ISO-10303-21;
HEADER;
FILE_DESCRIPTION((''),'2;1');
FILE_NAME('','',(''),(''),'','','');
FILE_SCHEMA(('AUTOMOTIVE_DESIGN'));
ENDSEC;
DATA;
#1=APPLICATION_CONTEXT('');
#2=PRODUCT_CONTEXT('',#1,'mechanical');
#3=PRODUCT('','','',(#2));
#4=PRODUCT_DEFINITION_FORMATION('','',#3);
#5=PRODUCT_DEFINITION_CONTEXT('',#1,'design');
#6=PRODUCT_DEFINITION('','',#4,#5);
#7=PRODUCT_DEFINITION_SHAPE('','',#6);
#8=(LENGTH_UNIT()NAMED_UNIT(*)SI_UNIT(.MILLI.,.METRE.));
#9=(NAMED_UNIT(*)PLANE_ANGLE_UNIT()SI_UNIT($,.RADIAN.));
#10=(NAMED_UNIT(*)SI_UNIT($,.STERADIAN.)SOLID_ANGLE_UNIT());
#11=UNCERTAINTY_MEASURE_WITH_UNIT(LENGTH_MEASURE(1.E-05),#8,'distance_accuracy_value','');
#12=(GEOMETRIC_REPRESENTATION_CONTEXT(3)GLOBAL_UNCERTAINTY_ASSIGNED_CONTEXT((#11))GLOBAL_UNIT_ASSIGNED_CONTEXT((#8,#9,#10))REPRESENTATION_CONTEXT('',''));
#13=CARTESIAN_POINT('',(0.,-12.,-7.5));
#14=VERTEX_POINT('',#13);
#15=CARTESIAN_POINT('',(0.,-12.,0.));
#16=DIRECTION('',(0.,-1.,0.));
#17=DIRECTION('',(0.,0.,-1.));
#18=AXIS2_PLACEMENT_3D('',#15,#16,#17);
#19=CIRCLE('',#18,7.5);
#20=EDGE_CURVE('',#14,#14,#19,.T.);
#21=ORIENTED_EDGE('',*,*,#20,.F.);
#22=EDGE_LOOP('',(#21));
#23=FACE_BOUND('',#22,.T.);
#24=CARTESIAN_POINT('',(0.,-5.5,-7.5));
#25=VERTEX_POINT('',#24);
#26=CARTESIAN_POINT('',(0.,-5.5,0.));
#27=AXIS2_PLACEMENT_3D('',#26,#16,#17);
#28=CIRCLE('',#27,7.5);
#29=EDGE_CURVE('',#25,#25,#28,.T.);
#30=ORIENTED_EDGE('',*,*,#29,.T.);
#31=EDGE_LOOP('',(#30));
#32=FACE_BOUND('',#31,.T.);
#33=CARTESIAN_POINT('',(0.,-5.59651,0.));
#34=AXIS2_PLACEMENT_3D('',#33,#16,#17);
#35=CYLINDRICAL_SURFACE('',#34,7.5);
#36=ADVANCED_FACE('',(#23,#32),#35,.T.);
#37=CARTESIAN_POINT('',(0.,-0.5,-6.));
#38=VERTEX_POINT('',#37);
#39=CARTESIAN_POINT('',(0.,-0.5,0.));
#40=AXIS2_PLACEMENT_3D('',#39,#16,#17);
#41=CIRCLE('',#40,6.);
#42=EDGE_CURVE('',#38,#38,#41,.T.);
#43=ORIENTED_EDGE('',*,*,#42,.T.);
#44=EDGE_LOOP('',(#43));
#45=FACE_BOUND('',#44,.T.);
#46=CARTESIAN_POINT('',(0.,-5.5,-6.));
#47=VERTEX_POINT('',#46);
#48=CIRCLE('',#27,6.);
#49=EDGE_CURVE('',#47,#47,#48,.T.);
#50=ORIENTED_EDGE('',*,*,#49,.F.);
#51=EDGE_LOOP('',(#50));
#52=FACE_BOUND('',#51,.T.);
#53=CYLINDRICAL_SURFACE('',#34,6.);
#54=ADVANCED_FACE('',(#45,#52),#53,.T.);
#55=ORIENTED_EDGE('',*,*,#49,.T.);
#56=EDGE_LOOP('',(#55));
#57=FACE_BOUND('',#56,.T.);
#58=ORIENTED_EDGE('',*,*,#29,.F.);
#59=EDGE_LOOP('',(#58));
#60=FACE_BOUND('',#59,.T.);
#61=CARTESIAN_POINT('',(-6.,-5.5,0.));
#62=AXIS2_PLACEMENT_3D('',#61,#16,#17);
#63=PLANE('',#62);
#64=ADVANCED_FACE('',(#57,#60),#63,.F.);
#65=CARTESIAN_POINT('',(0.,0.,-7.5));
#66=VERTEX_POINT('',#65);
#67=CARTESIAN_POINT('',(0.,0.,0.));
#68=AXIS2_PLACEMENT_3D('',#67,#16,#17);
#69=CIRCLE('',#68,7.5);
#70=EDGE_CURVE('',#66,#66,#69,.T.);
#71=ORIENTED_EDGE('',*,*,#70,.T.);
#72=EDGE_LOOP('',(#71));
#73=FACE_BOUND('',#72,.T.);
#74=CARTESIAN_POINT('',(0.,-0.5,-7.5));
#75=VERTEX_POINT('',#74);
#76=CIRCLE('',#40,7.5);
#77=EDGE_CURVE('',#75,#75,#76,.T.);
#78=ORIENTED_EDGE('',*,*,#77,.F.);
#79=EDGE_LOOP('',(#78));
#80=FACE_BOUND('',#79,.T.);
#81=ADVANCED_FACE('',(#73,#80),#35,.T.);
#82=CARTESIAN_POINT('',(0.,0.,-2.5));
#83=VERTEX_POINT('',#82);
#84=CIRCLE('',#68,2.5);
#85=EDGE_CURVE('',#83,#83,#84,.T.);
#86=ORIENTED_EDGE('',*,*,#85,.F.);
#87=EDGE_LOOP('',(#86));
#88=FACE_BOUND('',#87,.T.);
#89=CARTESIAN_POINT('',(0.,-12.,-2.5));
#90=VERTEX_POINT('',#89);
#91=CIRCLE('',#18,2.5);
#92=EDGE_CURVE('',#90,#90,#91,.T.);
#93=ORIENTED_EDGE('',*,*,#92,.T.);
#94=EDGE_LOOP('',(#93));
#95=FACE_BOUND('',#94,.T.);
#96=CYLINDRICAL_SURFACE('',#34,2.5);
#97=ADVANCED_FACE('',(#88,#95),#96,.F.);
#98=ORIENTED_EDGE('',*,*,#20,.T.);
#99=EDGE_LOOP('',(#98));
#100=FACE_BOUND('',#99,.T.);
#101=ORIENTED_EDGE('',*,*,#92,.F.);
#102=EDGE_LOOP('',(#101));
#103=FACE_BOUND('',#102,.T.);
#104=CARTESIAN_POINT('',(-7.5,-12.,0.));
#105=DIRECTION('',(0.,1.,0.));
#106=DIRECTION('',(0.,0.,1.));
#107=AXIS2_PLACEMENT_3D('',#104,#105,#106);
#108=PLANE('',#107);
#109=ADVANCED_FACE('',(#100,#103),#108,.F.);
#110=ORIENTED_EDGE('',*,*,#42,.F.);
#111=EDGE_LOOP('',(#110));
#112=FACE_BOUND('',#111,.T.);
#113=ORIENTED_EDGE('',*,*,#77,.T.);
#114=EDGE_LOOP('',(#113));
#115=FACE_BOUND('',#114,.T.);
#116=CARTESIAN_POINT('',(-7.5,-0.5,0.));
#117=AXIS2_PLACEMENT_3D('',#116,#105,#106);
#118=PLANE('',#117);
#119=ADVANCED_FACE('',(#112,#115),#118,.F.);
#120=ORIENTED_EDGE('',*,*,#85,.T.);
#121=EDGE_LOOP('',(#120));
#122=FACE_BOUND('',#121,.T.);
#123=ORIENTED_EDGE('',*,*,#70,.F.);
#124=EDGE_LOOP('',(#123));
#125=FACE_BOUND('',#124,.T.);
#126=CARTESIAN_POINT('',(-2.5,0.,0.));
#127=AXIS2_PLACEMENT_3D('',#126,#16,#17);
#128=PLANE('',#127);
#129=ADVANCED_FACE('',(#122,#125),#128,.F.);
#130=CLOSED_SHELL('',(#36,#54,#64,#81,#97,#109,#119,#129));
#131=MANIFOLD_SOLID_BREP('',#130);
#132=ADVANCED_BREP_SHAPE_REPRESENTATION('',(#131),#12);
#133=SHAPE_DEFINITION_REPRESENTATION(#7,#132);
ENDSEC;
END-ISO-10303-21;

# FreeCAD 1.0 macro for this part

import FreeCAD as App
import Part
import Sketcher
from FreeCAD import Vector
Q = App.Units.Quantity


def add_polygon(sketch, points):
    """Adds a closed chain of lines whose ends are joined by coincident constraints."""
    first, n = sketch.GeometryCount, len(points)
    for a, b in zip(points, points[1:] + points[:1]):
        sketch.addGeometry(Part.LineSegment(App.Vector(*a, 0), App.Vector(*b, 0)), False)
    for i in range(n):
        sketch.addConstraint(Sketcher.Constraint("Coincident", first + i, 2, first + (i + 1) % n, 1))

doc = App.newDocument("Part")
body = doc.addObject("PartDesign::Body", "Body")

sketch1 = body.newObject("Sketcher::SketchObject", "Sketch")
sketch1.AttachmentSupport = (doc.getObject("XY_Plane"), [""])
sketch1.MapMode = "FlatFace"
add_polygon(sketch1, [(-2.5, -12), (-2.5, 0), (-7.5, 0), (-7.5, -0.5), (-6, -0.5), (-6, -5.5), (-7.5, -5.5), (-7.5, -12)])
sketch1.addConstraint(Sketcher.Constraint("Vertical", 0))
sketch1.addConstraint(Sketcher.Constraint("Horizontal", 1))
sketch1.addConstraint(Sketcher.Constraint("Vertical", 2))
sketch1.addConstraint(Sketcher.Constraint("Horizontal", 3))
sketch1.addConstraint(Sketcher.Constraint("Vertical", 4))
sketch1.addConstraint(Sketcher.Constraint("Horizontal", 5))
sketch1.addConstraint(Sketcher.Constraint("Vertical", 6))
sketch1.addConstraint(Sketcher.Constraint("Horizontal", 7))
sketch1.addConstraint(Sketcher.Constraint("PointOnObject", 0, 2, -1))
sketch1.addConstraint(Sketcher.Constraint("Vertical", 2, 2, 5, 2))
sketch1.addConstraint(Sketcher.Constraint("Equal", 7, 4))
sketch1.addConstraint(Sketcher.Constraint("DistanceX", 1, 2, 1, 1, Q("5 mm")))
sketch1.addConstraint(Sketcher.Constraint("DistanceY", 0, 1, 0, 2, Q("12 mm")))
sketch1.addConstraint(Sketcher.Constraint("DistanceX", 3, 1, 3, 2, Q("1.5 mm")))
sketch1.addConstraint(Sketcher.Constraint("DistanceY", 2, 2, 2, 1, Q("0.5 mm")))
sketch1.addConstraint(Sketcher.Constraint("DistanceX", 3, 2, -1, 1, Q("6 mm")))
revolution = body.newObject("PartDesign::Revolution", "Revolution")
revolution.Profile = sketch1
revolution.ReferenceAxis = (sketch1, ["V_Axis"])
revolution.Angle = 360

doc.recompute()
